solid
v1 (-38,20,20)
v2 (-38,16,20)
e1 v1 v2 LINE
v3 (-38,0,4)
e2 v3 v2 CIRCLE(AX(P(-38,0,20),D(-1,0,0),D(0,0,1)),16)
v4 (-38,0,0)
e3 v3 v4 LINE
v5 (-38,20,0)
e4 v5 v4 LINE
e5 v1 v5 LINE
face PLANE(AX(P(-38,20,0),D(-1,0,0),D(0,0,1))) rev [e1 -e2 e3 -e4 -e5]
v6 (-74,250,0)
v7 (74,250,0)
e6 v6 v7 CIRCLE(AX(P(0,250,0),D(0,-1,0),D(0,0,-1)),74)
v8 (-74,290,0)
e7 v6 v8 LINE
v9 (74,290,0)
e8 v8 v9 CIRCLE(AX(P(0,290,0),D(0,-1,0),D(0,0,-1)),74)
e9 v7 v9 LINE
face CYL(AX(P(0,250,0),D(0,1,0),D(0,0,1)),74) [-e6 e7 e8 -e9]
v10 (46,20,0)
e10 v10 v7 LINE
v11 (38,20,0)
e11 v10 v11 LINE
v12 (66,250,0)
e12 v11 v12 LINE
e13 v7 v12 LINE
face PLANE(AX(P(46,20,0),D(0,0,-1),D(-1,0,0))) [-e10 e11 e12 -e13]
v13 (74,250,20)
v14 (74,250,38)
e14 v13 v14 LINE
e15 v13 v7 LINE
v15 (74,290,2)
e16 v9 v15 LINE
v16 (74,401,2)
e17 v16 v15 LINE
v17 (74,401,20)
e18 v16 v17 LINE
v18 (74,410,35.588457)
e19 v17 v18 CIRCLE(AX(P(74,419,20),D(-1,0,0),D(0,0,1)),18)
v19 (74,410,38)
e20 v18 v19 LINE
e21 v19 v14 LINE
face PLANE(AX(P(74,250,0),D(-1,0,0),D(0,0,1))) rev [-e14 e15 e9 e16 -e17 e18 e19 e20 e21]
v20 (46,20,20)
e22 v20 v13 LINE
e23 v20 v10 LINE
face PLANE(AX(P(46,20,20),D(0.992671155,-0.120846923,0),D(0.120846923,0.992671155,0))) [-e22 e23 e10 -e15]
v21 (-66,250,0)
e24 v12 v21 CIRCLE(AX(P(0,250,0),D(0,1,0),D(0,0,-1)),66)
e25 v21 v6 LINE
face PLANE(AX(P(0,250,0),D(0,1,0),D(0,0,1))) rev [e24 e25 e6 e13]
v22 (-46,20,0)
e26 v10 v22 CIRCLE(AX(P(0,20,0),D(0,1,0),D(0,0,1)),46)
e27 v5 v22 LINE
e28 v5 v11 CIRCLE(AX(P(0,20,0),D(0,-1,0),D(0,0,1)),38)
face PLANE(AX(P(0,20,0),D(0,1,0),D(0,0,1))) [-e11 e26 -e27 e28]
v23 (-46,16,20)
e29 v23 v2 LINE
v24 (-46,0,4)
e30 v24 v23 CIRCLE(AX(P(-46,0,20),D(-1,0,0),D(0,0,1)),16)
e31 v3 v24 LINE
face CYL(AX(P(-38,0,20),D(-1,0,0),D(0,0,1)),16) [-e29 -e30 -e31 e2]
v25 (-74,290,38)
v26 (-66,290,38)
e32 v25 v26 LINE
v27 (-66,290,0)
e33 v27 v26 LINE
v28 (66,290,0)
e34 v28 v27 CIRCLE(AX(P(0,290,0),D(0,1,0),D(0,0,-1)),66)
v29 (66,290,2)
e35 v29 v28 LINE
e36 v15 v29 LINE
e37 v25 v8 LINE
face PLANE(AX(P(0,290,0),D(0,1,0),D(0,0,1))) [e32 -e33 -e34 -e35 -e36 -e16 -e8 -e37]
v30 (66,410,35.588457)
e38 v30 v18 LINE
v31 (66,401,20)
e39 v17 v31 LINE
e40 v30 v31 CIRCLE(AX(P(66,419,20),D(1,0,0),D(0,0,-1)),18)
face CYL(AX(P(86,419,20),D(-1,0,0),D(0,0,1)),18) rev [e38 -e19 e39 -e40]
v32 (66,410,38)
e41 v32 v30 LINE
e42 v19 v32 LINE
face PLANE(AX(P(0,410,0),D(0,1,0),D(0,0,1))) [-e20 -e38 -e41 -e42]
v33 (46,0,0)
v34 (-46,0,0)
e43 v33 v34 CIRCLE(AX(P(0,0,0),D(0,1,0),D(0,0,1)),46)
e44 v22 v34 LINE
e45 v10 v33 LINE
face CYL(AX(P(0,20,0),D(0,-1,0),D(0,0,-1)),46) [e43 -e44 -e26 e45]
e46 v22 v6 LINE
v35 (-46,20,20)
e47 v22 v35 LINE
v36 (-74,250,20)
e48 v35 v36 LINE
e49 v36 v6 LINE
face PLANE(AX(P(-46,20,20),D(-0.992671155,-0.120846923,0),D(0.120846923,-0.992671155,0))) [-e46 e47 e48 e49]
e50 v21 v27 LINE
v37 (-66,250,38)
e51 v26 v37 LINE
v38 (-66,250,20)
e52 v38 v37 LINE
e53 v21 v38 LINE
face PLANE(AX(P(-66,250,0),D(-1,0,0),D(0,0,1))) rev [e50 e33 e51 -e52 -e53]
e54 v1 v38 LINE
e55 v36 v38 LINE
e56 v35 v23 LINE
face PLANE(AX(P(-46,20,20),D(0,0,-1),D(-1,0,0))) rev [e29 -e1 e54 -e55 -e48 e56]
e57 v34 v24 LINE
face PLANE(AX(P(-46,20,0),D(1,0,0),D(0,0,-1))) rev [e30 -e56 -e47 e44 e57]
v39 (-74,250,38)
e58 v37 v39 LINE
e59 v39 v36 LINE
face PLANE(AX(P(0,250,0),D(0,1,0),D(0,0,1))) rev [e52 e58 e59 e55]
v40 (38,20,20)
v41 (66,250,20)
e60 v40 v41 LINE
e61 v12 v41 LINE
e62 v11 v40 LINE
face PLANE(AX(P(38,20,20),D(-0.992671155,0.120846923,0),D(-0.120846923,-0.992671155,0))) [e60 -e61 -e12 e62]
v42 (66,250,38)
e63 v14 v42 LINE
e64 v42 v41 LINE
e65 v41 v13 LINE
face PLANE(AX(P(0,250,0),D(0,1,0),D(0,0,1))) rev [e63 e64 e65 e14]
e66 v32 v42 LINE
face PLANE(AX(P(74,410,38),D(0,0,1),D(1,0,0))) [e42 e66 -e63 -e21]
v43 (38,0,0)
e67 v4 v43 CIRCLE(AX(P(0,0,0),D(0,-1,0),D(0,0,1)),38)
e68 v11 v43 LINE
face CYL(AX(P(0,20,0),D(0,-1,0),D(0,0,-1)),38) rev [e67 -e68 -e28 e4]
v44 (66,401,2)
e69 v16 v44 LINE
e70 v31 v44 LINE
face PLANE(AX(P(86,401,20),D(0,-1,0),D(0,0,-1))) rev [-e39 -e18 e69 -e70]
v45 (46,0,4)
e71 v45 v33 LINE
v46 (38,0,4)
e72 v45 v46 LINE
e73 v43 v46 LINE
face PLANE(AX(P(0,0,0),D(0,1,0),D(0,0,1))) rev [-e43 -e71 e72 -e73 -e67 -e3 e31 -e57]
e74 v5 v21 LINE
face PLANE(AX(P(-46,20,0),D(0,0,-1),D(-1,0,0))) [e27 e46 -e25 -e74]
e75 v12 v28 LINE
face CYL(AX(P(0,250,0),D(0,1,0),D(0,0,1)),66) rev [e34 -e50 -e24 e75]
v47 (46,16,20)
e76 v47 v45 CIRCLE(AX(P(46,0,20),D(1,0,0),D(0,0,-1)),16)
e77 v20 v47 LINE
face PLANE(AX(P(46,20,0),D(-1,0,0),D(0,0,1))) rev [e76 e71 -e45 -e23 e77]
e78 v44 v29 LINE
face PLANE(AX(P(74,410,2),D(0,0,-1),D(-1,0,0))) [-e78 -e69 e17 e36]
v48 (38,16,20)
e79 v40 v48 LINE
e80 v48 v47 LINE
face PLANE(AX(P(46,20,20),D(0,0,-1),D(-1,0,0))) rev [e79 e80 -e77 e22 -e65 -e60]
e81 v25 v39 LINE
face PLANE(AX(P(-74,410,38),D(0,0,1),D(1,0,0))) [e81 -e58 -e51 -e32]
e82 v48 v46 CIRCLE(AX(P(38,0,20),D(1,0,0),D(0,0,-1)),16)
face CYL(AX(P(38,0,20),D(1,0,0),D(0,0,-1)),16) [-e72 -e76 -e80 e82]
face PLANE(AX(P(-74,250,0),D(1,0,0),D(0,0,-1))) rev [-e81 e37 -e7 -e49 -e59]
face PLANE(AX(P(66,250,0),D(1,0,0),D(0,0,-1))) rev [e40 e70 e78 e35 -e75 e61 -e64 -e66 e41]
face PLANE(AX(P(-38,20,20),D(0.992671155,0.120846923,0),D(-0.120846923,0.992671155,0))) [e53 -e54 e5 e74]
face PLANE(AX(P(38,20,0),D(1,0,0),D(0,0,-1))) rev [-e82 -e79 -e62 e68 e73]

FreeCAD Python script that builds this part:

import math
import FreeCAD as App
import Part
import Sketcher
from FreeCAD import Vector


def add_polygon(sketch, points):
    """Adds a closed chain of lines whose ends are joined by coincident constraints."""
    first, n = sketch.GeometryCount, len(points)
    for a, b in zip(points, points[1:] + points[:1]):
        sketch.addGeometry(Part.LineSegment(App.Vector(*a, 0), App.Vector(*b, 0)), False)
    for i in range(n):
        sketch.addConstraint(Sketcher.Constraint("Coincident", first + i, 2, first + (i + 1) % n, 1))

doc = App.newDocument("Part")
body = doc.addObject("PartDesign::Body", "Body")

# Sketch on XZ plane
sketch1 = body.newObject("Sketcher::SketchObject", "Sketch")
sketch1.AttachmentSupport = (doc.getObject("XZ_Plane"), [""])
sketch1.MapMode = "FlatFace"
sketch1.addGeometry([
    Part.LineSegment(Vector(-46, 0, 0), Vector(-46, 20, 0)),  # 0
    Part.LineSegment(Vector(-46, 20, 0), Vector(-38, 20, 0)),  # 1
    Part.LineSegment(Vector(-38, 20, 0), Vector(-38, 0, 0)),  # 2
    Part.ArcOfCircle(Part.Circle(Vector(0, 0, 0), Vector(0, 0, 1), 38), math.radians(180), math.radians(360)),  # 3
    Part.LineSegment(Vector(38, 0, 0), Vector(38, 20, 0)),  # 4
    Part.LineSegment(Vector(38, 20, 0), Vector(46, 20, 0)),  # 5
    Part.LineSegment(Vector(46, 20, 0), Vector(46, 0, 0)),  # 6
    Part.ArcOfCircle(Part.Circle(Vector(0, 0, 0), Vector(0, 0, 1), 46), math.radians(180), math.radians(360)),  # 7
], False)
sketch1.addConstraint([
    Sketcher.Constraint("Coincident", 0, 2, 1, 1),
    Sketcher.Constraint("Coincident", 1, 2, 2, 1),
    Sketcher.Constraint("Tangent", 2, 2, 3, 1),
    Sketcher.Constraint("Tangent", 3, 2, 4, 1),
    Sketcher.Constraint("Coincident", 4, 2, 5, 1),
    Sketcher.Constraint("Coincident", 5, 2, 6, 1),
    Sketcher.Constraint("Tangent", 6, 2, 7, 2),
    Sketcher.Constraint("Tangent", 7, 1, 0, 1),
    Sketcher.Constraint("Vertical", 0),
    Sketcher.Constraint("Horizontal", 1),
    Sketcher.Constraint("Vertical", 2),
    Sketcher.Constraint("Vertical", 4),
    Sketcher.Constraint("Horizontal", 5),
    Sketcher.Constraint("Vertical", 6),
    Sketcher.Constraint("Coincident", 3, 3, -1, 1),
    Sketcher.Constraint("Coincident", 7, 3, -1, 1),
    Sketcher.Constraint("Horizontal", 1, 2, 4, 2),
    Sketcher.Constraint("Radius", 3, 38.0),
    Sketcher.Constraint("Radius", 7, 46.0),
    Sketcher.Constraint("DistanceY", 0, 1, 0, 2, 20.0),
])
pad1 = body.newObject("PartDesign::Pad", "Pad")
pad1.Profile = sketch1
pad1.Length = 20
pad1.Reversed = True

# Sketch on YZ plane
sketch2 = body.newObject("Sketcher::SketchObject", "Sketch001")
sketch2.AttachmentSupport = (doc.getObject("YZ_Plane"), [""])
sketch2.MapMode = "FlatFace"
sketch2.AttachmentOffset = App.Placement(Vector(0, 0, -46), App.Rotation())
sketch2.addGeometry(Part.Circle(Vector(0, 20, 0), Vector(0, 0, 1), 16), False)
sketch2.addConstraint([
    Sketcher.Constraint("PointOnObject", 0, 3, -2),
    Sketcher.Constraint("Diameter", 0, 32.0),
    Sketcher.Constraint("DistanceY", -1, 1, 0, 3, 20.0),
])
pad2 = body.newObject("PartDesign::Pad", "Pad001")
pad2.Profile = sketch2
pad2.Length = 8

# Sketch on YZ plane
sketch3 = body.newObject("Sketcher::SketchObject", "Sketch002")
sketch3.AttachmentSupport = (doc.getObject("YZ_Plane"), [""])
sketch3.MapMode = "FlatFace"
sketch3.AttachmentOffset = App.Placement(Vector(0, 0, 38), App.Rotation())
sketch3.addGeometry(Part.Circle(Vector(0, 20, 0), Vector(0, 0, 1), 16), False)
sketch3.addConstraint([
    Sketcher.Constraint("PointOnObject", 0, 3, -2),
    Sketcher.Constraint("Diameter", 0, 32.0),
    Sketcher.Constraint("DistanceY", -1, 1, 0, 3, 20.0),
])
pad3 = body.newObject("PartDesign::Pad", "Pad002")
pad3.Profile = sketch3
pad3.Length = 8
body2 = doc.addObject("PartDesign::Body", "Body001")

# Sketch on XZ plane
sketch4 = body2.newObject("Sketcher::SketchObject", "Sketch003")
sketch4.AttachmentSupport = (doc.getObject("XZ_Plane001"), [""])
sketch4.MapMode = "FlatFace"
sketch4.AttachmentOffset = App.Placement(Vector(0, 0, -270), App.Rotation())
sketch4.addGeometry([
    Part.LineSegment(Vector(-74, 20, 0), Vector(-74, 0, 0)),  # 0
    Part.ArcOfCircle(Part.Circle(Vector(0, 0, 0), Vector(0, 0, 1), 74), math.radians(-180), math.radians(0)),  # 1
    Part.LineSegment(Vector(74, 0, 0), Vector(74, 20, 0)),  # 2
    Part.LineSegment(Vector(74, 20, 0), Vector(66, 20, 0)),  # 3
    Part.LineSegment(Vector(66, 20, 0), Vector(66, 0, 0)),  # 4
    Part.ArcOfCircle(Part.Circle(Vector(0, 0, 0), Vector(0, 0, 1), 66), math.radians(-180), math.radians(0)),  # 5
    Part.LineSegment(Vector(-66, 0, 0), Vector(-66, 20, 0)),  # 6
    Part.LineSegment(Vector(-66, 20, 0), Vector(-74, 20, 0)),  # 7
], False)
sketch4.addConstraint([
    Sketcher.Constraint("Tangent", 0, 2, 1, 1),
    Sketcher.Constraint("Tangent", 1, 2, 2, 1),
    Sketcher.Constraint("Coincident", 2, 2, 3, 1),
    Sketcher.Constraint("Coincident", 3, 2, 4, 1),
    Sketcher.Constraint("Tangent", 4, 2, 5, 2),
    Sketcher.Constraint("Tangent", 5, 1, 6, 1),
    Sketcher.Constraint("Coincident", 6, 2, 7, 1),
    Sketcher.Constraint("Coincident", 7, 2, 0, 1),
    Sketcher.Constraint("Vertical", 0),
    Sketcher.Constraint("Vertical", 2),
    Sketcher.Constraint("Horizontal", 3),
    Sketcher.Constraint("Vertical", 4),
    Sketcher.Constraint("Vertical", 6),
    Sketcher.Constraint("Horizontal", 7),
    Sketcher.Constraint("Coincident", 1, 3, -1, 1),
    Sketcher.Constraint("Coincident", 5, 3, -1, 1),
    Sketcher.Constraint("Horizontal", 3, 2, 6, 2),
    Sketcher.Constraint("Radius", 1, 74.0),
    Sketcher.Constraint("Radius", 5, 66.0),
    Sketcher.Constraint("DistanceY", 0, 2, 0, 1, 20.0),
])
pad4 = body2.newObject("PartDesign::Pad", "Pad003")
pad4.Profile = sketch4
pad4.Length = 40
pad4.Midplane = True
body.AllowCompound = True
doc.recompute()

boolean = body.newObject("PartDesign::Boolean", "Boolean")
boolean.Type = "Fuse"
boolean.addObjects([body2])

# Sketch on XZ plane
sketch5 = body.newObject("Sketcher::SketchObject", "Sketch004")
sketch5.AttachmentSupport = (doc.getObject("XZ_Plane"), [""])
sketch5.MapMode = "FlatFace"
sketch5.AttachmentOffset = App.Placement(Vector(0, 0, -20), App.Rotation())
add_polygon(sketch5, [(38, 0), (38, 20), (46, 20), (46, 0)])  # lines 0-3
sketch5.addConstraint([
    Sketcher.Constraint("Vertical", 0),
    Sketcher.Constraint("Horizontal", 1),
    Sketcher.Constraint("Vertical", 2),
    Sketcher.Constraint("Horizontal", 3),
    Sketcher.Constraint("PointOnObject", 2, 2, -1),
    Sketcher.Constraint("DistanceX", 1, 1, 1, 2, 8.0),
    Sketcher.Constraint("DistanceY", 0, 1, 0, 2, 20.0),
    Sketcher.Constraint("DistanceX", -1, 1, 0, 2, 38.0),
])

# Sketch on an angled plane
sketch6 = body.newObject("Sketcher::SketchObject", "Sketch005")
sketch6.Placement = App.Placement(Vector(42.928992, -5.226138, 0), App.Rotation(Vector(0.120846923, 0.992671155, 0), Vector(0, 0, 1.000000001), Vector(0.992671155, -0.120846923, 0), "ZXY"))
sketch6.addGeometry(Part.LineSegment(Vector(25, 20, 0), Vector(257, 20, 0)), False)
sketch6.addConstraint([
    Sketcher.Constraint("Horizontal", 0),
    Sketcher.Constraint("DistanceY", -1, 1, 0, 1, 20.0),
    Sketcher.Constraint("DistanceX", 0, 1, 0, 2, 231.69808),
    Sketcher.Constraint("DistanceX", -1, 1, 0, 1, 25.412382),
])
doc.recompute()

additivepipe = body.newObject("PartDesign::AdditivePipe", "AdditivePipe")
additivepipe.Profile = sketch5
additivepipe.Spine = (sketch6, ["Edge1"])

# Sketch on XZ plane
sketch7 = body.newObject("Sketcher::SketchObject", "Sketch006")
sketch7.AttachmentSupport = (doc.getObject("XZ_Plane"), [""])
sketch7.MapMode = "FlatFace"
sketch7.AttachmentOffset = App.Placement(Vector(0, 0, -20), App.Rotation())
add_polygon(sketch7, [(-46, 0), (-46, 20), (-38, 20), (-38, 0)])  # lines 0-3
sketch7.addConstraint([
    Sketcher.Constraint("Vertical", 0),
    Sketcher.Constraint("Horizontal", 1),
    Sketcher.Constraint("Vertical", 2),
    Sketcher.Constraint("Horizontal", 3),
    Sketcher.Constraint("PointOnObject", 2, 2, -1),
    Sketcher.Constraint("DistanceX", 1, 1, 1, 2, 8.0),
    Sketcher.Constraint("DistanceY", 0, 1, 0, 2, 20.0),
    Sketcher.Constraint("DistanceX", 0, 2, -1, 1, 46.0),
])

# Sketch on an angled plane
sketch8 = body.newObject("Sketcher::SketchObject", "Sketch007")
sketch8.Placement = App.Placement(Vector(-42.928992, -5.226138, 0), App.Rotation(Vector(-0.120846923, 0.992671155, 0), Vector(0, 0, 1.000000001), Vector(0.992671155, 0.120846923, 0), "ZXY"))
sketch8.addGeometry(Part.LineSegment(Vector(25, 20, 0), Vector(257, 20, 0)), False)
sketch8.addConstraint([
    Sketcher.Constraint("Horizontal", 0),
    Sketcher.Constraint("DistanceY", -1, 1, 0, 1, 20.0),
    Sketcher.Constraint("DistanceX", 0, 1, 0, 2, 231.69808),
    Sketcher.Constraint("DistanceX", -1, 1, 0, 1, 25.412382),
])
doc.recompute()

additivepipe2 = body.newObject("PartDesign::AdditivePipe", "AdditivePipe001")
additivepipe2.Profile = sketch7
additivepipe2.Spine = (sketch8, ["Edge1"])

# Sketch on XZ plane
sketch9 = body.newObject("Sketcher::SketchObject", "Sketch008")
sketch9.AttachmentSupport = (doc.getObject("XZ_Plane"), [""])
sketch9.MapMode = "FlatFace"
sketch9.AttachmentOffset = App.Placement(Vector(0, 0, -250), App.Rotation())
add_polygon(sketch9, [(-74, 38), (-74, 2), (-66, 2), (-66, 38)])  # lines 0-3
add_polygon(sketch9, [(66, 38), (66, 2), (74, 2), (74, 38)])  # lines 4-7
sketch9.addConstraint([
    Sketcher.Constraint("Vertical", 0),
    Sketcher.Constraint("Horizontal", 1),
    Sketcher.Constraint("Vertical", 2),
    Sketcher.Constraint("Horizontal", 3),
    Sketcher.Constraint("Vertical", 4),
    Sketcher.Constraint("Horizontal", 5),
    Sketcher.Constraint("Vertical", 6),
    Sketcher.Constraint("Horizontal", 7),
    Sketcher.Constraint("Symmetric", 1, 2, 4, 2, -2),
    Sketcher.Constraint("Symmetric", 3, 2, 6, 2, -2),
    Sketcher.Constraint("DistanceX", 1, 1, 1, 2, 8.0),
    Sketcher.Constraint("DistanceY", 0, 2, 0, 1, 36.0),
    Sketcher.Constraint("DistanceX", 0, 2, -1, 1, 74.0),
    Sketcher.Constraint("DistanceY", -1, 1, 0, 2, 2.0),
])
pad5 = body.newObject("PartDesign::Pad", "Pad004")
pad5.Profile = sketch9
pad5.Length = 160
pad5.Reversed = True

# Sketch on YZ plane
sketch10 = body.newObject("Sketcher::SketchObject", "Sketch009")
sketch10.AttachmentSupport = (doc.getObject("YZ_Plane"), [""])
sketch10.MapMode = "FlatFace"
sketch10.AttachmentOffset = App.Placement(Vector(0, 0, -74), App.Rotation())
sketch10.addGeometry([
    Part.LineSegment(Vector(401, 2, 0), Vector(401, 20, 0)),
    Part.ArcOfCircle(Part.Circle(Vector(419, 20, 0), Vector(0, 0, 1), 18), math.radians(-90), math.radians(180)),
    Part.LineSegment(Vector(419, 2, 0), Vector(401, 2, 0)),
], False)
sketch10.addConstraint([
    Sketcher.Constraint("Tangent", 0, 2, 1, 2),
    Sketcher.Constraint("Tangent", 1, 1, 2, 1),
    Sketcher.Constraint("Coincident", 2, 2, 0, 1),
    Sketcher.Constraint("Vertical", 0),
    Sketcher.Constraint("Horizontal", 2),
    Sketcher.Constraint("Radius", 1, 18.0),
    Sketcher.Constraint("DistanceX", -1, 1, 1, 3, 419.0),
    Sketcher.Constraint("DistanceY", -1, 1, 1, 3, 20.0),
])
pocket1 = body.newObject("PartDesign::Pocket", "Pocket")
pocket1.Profile = sketch10
pocket1.Length = 160
pocket1.Reversed = True

# Sketch on YZ plane
sketch11 = body.newObject("Sketcher::SketchObject", "Sketch010")
sketch11.AttachmentSupport = (doc.getObject("YZ_Plane"), [""])
sketch11.MapMode = "FlatFace"
sketch11.AttachmentOffset = App.Placement(Vector(0, 0, -74), App.Rotation())
add_polygon(sketch11, [(427, -6), (290, -6), (290, 56), (427, 56)])  # lines 0-3
sketch11.addConstraint([
    Sketcher.Constraint("Horizontal", 0),
    Sketcher.Constraint("Vertical", 1),
    Sketcher.Constraint("Horizontal", 2),
    Sketcher.Constraint("Vertical", 3),
    Sketcher.Constraint("DistanceX", -1, 1, 0, 2, 290.0),
    Sketcher.Constraint("DistanceY", 1, 1, 1, 2, 62.19926),
    Sketcher.Constraint("DistanceX", 0, 2, 0, 1, 136.537597),
    Sketcher.Constraint("DistanceY", 0, 2, -1, 1, 5.796231),
])
pocket2 = body.newObject("PartDesign::Pocket", "Pocket001")
pocket2.Profile = sketch11
pocket2.Length = 10
pocket2.Reversed = True

doc.recompute()
